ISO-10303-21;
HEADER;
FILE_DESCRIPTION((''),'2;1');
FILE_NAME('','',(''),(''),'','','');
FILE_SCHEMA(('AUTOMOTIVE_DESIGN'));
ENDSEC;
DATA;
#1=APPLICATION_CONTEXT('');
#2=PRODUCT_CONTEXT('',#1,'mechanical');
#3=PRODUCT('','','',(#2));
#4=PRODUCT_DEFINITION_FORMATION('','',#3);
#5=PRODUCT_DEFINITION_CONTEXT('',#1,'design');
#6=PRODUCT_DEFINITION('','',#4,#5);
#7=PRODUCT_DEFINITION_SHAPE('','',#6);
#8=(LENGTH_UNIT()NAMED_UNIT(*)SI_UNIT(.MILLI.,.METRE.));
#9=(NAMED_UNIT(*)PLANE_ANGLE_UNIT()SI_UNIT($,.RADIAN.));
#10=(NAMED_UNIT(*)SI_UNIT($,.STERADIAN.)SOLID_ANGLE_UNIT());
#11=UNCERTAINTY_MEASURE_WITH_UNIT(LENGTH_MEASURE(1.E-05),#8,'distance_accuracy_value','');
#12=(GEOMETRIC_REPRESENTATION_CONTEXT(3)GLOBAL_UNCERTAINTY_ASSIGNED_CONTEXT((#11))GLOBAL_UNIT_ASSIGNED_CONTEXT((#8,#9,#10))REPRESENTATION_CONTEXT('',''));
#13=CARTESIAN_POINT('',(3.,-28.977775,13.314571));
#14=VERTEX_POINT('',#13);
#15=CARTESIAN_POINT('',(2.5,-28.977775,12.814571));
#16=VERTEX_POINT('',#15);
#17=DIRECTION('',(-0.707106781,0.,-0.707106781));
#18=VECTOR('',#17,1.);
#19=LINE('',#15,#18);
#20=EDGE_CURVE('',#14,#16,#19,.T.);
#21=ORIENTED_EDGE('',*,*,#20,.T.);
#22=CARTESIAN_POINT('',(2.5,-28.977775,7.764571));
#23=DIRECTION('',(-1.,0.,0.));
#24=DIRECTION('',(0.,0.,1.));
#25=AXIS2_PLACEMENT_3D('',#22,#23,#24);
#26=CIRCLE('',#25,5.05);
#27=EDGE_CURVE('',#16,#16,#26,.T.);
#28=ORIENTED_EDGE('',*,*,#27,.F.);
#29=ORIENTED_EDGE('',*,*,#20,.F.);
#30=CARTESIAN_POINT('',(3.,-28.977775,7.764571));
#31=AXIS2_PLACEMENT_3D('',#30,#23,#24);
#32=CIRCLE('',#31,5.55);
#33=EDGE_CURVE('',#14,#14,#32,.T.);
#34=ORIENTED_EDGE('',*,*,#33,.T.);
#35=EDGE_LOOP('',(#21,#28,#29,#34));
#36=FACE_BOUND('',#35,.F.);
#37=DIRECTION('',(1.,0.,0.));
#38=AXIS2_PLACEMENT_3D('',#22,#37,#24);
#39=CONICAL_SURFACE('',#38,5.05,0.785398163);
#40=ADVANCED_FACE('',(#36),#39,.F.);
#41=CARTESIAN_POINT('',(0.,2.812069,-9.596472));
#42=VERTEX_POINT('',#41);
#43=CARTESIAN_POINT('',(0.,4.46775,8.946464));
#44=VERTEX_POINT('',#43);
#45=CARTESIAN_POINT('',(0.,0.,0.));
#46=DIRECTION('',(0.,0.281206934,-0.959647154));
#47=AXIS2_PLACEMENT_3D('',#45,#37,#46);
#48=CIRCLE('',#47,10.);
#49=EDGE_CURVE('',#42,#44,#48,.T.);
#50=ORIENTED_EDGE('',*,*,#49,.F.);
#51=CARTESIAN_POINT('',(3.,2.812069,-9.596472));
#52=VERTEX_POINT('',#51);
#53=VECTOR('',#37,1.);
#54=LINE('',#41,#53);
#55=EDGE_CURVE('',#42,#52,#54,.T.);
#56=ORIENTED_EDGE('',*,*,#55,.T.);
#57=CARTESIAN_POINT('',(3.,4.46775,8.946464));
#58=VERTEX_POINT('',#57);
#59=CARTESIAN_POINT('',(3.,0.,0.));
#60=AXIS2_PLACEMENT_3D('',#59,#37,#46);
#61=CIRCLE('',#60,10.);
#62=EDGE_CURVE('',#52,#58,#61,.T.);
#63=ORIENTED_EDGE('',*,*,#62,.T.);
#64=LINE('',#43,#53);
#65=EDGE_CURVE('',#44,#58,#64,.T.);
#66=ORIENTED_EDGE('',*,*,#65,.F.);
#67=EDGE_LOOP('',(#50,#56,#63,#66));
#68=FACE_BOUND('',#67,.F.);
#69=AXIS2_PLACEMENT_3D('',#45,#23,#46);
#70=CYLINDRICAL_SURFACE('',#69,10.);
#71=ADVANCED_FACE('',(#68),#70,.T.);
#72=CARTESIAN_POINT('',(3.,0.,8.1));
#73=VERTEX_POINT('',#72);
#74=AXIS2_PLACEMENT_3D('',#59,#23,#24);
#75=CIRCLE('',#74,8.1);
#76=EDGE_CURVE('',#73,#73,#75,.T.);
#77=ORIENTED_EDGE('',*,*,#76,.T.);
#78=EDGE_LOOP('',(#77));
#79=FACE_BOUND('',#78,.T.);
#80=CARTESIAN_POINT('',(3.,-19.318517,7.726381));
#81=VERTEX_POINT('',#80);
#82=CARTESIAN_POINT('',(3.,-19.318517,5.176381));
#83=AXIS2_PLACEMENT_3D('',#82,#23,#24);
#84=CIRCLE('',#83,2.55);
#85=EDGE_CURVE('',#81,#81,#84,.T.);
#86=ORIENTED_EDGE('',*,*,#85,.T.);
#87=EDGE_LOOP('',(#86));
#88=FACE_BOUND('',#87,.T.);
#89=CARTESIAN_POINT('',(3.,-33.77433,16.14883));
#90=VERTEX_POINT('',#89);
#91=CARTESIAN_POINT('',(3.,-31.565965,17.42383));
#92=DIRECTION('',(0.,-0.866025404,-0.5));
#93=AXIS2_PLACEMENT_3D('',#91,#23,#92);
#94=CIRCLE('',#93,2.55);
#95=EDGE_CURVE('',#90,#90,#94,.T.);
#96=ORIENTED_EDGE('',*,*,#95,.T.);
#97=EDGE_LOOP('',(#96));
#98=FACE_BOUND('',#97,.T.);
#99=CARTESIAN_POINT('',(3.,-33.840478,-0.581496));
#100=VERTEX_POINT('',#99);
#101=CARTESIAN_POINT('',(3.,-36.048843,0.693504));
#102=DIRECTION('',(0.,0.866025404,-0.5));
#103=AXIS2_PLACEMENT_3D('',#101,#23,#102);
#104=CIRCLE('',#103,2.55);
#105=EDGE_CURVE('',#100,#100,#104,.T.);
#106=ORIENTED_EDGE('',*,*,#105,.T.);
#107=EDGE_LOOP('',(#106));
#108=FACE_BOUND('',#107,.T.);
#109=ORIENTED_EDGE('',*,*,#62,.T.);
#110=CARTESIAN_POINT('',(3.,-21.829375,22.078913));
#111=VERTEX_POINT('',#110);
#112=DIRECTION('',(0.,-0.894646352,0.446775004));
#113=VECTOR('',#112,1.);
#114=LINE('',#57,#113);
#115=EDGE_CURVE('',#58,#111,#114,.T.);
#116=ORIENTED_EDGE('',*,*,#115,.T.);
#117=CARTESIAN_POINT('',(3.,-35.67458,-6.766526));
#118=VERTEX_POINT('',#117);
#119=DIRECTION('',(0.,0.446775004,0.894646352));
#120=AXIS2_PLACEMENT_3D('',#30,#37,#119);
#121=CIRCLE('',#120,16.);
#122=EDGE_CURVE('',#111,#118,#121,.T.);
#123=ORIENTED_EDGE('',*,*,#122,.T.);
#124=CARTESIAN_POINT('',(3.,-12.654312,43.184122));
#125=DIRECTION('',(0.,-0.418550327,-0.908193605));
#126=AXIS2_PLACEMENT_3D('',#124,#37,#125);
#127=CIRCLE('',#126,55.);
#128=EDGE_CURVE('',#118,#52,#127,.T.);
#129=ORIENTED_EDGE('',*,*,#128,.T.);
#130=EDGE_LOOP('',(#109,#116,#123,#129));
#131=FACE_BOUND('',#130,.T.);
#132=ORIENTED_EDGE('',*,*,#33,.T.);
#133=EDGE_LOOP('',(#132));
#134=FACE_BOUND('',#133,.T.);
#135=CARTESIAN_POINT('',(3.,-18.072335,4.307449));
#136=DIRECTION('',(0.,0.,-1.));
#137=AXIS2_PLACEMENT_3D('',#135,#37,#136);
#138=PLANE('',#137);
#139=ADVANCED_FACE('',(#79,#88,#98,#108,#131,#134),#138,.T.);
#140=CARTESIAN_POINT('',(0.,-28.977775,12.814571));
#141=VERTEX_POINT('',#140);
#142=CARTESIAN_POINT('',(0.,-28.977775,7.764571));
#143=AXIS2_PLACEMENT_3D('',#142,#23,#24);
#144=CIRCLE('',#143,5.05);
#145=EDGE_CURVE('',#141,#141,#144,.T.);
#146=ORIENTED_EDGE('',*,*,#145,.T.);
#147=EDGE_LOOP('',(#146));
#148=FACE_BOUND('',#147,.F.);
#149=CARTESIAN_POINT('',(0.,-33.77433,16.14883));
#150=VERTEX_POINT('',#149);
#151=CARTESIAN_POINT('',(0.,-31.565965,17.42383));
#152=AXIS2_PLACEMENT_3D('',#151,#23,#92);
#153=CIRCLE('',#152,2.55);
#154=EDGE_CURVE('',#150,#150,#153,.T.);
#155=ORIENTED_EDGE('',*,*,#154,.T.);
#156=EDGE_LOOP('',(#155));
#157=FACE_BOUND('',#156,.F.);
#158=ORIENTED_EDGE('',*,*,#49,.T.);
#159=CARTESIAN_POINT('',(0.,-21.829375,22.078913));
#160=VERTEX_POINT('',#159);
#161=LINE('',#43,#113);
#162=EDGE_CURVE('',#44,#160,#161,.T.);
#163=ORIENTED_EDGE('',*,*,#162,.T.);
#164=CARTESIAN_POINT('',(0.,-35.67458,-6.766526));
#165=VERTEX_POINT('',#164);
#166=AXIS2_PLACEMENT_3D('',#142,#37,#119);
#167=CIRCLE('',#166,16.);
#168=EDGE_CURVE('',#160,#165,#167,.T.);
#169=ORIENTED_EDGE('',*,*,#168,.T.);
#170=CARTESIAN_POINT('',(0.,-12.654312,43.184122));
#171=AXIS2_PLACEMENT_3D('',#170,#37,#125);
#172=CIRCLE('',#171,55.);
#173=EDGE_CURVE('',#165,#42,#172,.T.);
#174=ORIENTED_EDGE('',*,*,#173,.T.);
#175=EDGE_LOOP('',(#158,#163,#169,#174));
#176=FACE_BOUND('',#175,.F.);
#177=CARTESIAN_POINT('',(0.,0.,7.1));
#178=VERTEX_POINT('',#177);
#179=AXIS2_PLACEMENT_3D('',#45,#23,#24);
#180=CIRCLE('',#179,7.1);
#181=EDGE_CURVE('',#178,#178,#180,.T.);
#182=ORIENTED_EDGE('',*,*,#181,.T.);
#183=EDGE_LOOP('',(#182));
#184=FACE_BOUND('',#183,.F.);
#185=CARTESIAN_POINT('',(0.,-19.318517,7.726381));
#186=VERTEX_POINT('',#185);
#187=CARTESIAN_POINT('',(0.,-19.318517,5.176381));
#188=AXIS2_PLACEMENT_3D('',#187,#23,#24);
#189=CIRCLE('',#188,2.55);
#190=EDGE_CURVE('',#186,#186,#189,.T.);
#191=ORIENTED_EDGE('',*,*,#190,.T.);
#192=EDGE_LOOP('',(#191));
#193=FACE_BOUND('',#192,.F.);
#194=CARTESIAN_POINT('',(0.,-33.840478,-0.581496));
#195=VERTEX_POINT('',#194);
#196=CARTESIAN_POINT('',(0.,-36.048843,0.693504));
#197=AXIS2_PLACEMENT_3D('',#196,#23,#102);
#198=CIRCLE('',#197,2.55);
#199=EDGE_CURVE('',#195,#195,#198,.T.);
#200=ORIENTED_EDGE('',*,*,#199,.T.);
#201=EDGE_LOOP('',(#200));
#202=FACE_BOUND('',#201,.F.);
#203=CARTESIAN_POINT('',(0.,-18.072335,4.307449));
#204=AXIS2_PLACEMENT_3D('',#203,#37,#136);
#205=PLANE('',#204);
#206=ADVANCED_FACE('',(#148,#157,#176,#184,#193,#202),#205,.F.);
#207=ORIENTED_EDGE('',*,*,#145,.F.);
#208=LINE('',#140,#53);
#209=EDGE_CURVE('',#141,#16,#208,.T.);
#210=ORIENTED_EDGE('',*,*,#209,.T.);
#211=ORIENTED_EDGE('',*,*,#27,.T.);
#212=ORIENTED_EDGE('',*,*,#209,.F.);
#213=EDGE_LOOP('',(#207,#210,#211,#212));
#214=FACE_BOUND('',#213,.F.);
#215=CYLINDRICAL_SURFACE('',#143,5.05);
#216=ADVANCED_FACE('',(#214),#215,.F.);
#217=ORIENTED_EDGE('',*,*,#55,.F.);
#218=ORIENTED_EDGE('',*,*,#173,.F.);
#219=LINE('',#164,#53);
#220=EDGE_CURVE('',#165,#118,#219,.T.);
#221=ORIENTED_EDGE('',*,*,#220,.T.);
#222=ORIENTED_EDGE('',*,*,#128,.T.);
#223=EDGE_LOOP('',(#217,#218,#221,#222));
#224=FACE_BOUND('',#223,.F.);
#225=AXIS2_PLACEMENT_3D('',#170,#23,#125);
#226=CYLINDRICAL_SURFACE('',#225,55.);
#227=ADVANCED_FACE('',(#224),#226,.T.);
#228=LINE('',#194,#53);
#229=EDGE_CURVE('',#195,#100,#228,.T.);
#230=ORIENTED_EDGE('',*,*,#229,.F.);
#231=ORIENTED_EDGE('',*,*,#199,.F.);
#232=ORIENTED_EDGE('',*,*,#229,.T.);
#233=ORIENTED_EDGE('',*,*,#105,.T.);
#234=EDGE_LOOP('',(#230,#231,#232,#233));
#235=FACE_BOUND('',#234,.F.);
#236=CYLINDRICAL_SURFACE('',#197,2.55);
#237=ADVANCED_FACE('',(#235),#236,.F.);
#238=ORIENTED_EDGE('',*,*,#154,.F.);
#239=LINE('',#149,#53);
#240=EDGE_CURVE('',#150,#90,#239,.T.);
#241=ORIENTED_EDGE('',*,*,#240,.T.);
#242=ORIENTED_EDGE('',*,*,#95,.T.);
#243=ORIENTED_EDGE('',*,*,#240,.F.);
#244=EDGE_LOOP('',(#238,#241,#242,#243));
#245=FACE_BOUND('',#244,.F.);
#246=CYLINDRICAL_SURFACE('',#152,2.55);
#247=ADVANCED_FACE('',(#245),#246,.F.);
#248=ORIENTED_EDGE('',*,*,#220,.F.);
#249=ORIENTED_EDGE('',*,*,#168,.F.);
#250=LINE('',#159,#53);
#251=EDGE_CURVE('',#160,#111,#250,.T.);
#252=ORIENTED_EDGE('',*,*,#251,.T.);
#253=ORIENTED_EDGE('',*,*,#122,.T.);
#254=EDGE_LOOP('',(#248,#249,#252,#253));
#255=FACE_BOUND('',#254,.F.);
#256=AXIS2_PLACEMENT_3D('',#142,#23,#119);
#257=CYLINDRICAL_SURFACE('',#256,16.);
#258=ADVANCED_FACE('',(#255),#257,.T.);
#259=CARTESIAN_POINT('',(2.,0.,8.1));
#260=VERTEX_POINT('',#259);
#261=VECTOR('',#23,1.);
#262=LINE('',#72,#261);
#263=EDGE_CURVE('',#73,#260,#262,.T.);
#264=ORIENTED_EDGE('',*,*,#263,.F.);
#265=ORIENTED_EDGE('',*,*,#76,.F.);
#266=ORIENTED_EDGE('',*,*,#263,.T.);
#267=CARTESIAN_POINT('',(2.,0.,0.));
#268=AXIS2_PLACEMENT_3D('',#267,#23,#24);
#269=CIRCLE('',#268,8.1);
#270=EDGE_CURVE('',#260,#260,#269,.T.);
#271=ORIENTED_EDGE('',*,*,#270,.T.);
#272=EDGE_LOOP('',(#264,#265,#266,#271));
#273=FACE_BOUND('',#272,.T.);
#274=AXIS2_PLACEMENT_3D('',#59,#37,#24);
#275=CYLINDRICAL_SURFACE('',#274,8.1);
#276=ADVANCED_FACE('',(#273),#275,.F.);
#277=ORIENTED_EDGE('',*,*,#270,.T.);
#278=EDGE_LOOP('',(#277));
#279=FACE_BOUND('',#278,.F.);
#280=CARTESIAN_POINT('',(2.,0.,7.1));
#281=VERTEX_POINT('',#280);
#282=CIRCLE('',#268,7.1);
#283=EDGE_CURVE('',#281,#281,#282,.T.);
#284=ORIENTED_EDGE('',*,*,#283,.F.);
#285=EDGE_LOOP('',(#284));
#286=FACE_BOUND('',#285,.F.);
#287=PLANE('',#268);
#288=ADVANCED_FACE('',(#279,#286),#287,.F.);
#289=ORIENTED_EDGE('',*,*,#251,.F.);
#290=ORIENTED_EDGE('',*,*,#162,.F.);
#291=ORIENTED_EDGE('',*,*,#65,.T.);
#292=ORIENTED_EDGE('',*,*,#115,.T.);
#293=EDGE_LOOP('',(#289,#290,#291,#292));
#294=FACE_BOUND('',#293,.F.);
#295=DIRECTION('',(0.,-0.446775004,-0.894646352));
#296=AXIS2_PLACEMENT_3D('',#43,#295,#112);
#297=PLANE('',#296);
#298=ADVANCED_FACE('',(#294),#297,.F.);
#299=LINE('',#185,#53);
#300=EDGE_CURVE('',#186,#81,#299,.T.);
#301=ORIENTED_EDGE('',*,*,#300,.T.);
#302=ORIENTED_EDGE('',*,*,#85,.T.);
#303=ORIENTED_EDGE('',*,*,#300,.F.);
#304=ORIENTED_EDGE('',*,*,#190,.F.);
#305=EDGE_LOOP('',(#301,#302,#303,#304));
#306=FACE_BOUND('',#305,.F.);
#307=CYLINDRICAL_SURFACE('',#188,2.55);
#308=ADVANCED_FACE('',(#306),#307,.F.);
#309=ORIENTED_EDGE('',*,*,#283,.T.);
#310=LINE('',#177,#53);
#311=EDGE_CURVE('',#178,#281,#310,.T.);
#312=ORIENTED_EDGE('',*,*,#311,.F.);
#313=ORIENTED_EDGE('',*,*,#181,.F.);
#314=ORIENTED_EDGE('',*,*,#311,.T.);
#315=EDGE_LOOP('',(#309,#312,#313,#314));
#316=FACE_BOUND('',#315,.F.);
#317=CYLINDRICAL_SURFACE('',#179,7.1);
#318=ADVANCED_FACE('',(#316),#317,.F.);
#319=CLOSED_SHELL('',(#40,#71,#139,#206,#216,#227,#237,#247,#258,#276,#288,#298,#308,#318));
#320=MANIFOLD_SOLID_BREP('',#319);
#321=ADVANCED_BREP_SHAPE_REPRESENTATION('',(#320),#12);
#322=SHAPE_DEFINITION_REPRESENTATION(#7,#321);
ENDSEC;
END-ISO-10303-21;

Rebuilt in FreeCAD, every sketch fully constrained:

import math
import FreeCAD as App
import Part
import Sketcher


def edges_at(feature, points):
    """Names of the edges that pass closest to the given points."""
    edges = feature.Shape.Edges
    near = lambda p: min(range(len(edges)), key=lambda i: edges[i].distToShape(Part.Vertex(*p))[0])
    return sorted({f"Edge{near(p) + 1}" for p in points})

doc = App.newDocument("Part")
body = doc.addObject("PartDesign::Body", "Body")

# Sketch on YZ plane
sketch1 = body.newObject("Sketcher::SketchObject", "Sketch")
sketch1.AttachmentSupport = (doc.getObject("YZ_Plane"), [""])
sketch1.MapMode = "FlatFace"
sketch1.addGeometry([
    Part.ArcOfCircle(Part.Circle(App.Vector(-13, 43, 0), App.Vector(0, 0, 1), 55), math.radians(-115), math.radians(-74)),
    Part.ArcOfCircle(Part.Circle(App.Vector(0, 0, 0), App.Vector(0, 0, 1), 10), math.radians(-74), math.radians(63)),
    Part.LineSegment(App.Vector(4, 9, 0), App.Vector(-22, 22, 0)),
    Part.ArcOfCircle(Part.Circle(App.Vector(-29, 8, 0), App.Vector(0, 0, 1), 16), math.radians(63), math.radians(245)),
], False)
sketch1.addConstraint([
    Sketcher.Constraint("Tangent", 0, 2, 1, 1),
    Sketcher.Constraint("Tangent", 1, 2, 2, 1),
    Sketcher.Constraint("Tangent", 2, 2, 3, 1),
    Sketcher.Constraint("Tangent", 3, 2, 0, 1),
    Sketcher.Constraint("Coincident", 1, 3, -1, 1),
    Sketcher.Constraint("Radius", 0, 55.0),
    Sketcher.Constraint("Radius", 1, 10.0),
    Sketcher.Constraint("Radius", 3, 16.0),
    Sketcher.Constraint("DistanceX", 3, 3, 2, 2, 7.1484),
    Sketcher.Constraint("DistanceY", -1, 1, 0, 3, 43.184122),
])
pad1 = body.newObject("PartDesign::Pad", "Pad")
pad1.Profile = sketch1
pad1.Length = 3

# Sketch on YZ plane
sketch2 = body.newObject("Sketcher::SketchObject", "Sketch001")
sketch2.AttachmentSupport = (doc.getObject("YZ_Plane"), [""])
sketch2.MapMode = "FlatFace"
sketch2.addGeometry([
    Part.Circle(App.Vector(0, 0, 0), App.Vector(0, 0, 1), 7),
    Part.Circle(App.Vector(-29, 8, 0), App.Vector(0, 0, 1), 5),
], False)
sketch2.addConstraint([
    Sketcher.Constraint("Coincident", 0, 3, -1, 1),
    Sketcher.Constraint("Diameter", 0, 14.2),
    Sketcher.Constraint("Diameter", 1, 10.1),
    Sketcher.Constraint("DistanceY", -1, 1, 1, 3, 7.764571),
    Sketcher.Constraint("DistanceX", 1, 3, -1, 1, 28.977775),
])
pocket1 = body.newObject("PartDesign::Pocket", "Pocket")
pocket1.Profile = sketch2
pocket1.Length = 10
pocket1.Reversed = True

# Sketch on YZ plane
sketch3 = body.newObject("Sketcher::SketchObject", "Sketch002")
sketch3.AttachmentSupport = (doc.getObject("YZ_Plane"), [""])
sketch3.MapMode = "FlatFace"
sketch3.addGeometry(Part.Circle(App.Vector(-19.3, 5.2, 0), App.Vector(0, 0, 1), 2.5), False)
sketch3.addConstraint([
    Sketcher.Constraint("Diameter", 0, 5.1),
    Sketcher.Constraint("DistanceY", -1, 1, 0, 3, 5.176381),
    Sketcher.Constraint("DistanceX", 0, 3, -1, 1, 19.318517),
])
pocket2 = body.newObject("PartDesign::Pocket", "Pocket001")
pocket2.Profile = sketch3
pocket2.Length = 10
pocket2.Reversed = True
doc.recompute()

datumline = body.newObject("PartDesign::Line", "DatumLine")
datumline.Placement = App.Placement(App.Vector(0, -28.977775, 7.764571), App.Rotation(App.Vector(0, 0, 1), App.Vector(1, 0, 0)))
polarpattern = body.newObject("PartDesign::PolarPattern", "PolarPattern")
polarpattern.Originals = [pocket2]
polarpattern.Axis = (datumline, [""])
polarpattern.Angle = 360
polarpattern.Occurrences = 3
body.Tip = polarpattern
doc.recompute()

chamfer = body.newObject("PartDesign::Chamfer", "Chamfer")
chamfer.Base = (polarpattern, edges_at(polarpattern, [(3, -28.978, 2.715)]))
chamfer.Size = 0.5

# Sketch on YZ plane
sketch4 = body.newObject("Sketcher::SketchObject", "Sketch003")
sketch4.AttachmentSupport = (doc.getObject("YZ_Plane"), [""])
sketch4.MapMode = "FlatFace"
sketch4.AttachmentOffset = App.Placement(App.Vector(0, 0, 3), App.Rotation())
sketch4.addGeometry(Part.Circle(App.Vector(0, 0, 0), App.Vector(0, 0, 1), 8), False)
sketch4.addConstraint([
    Sketcher.Constraint("Coincident", 0, 3, -1, 1),
    Sketcher.Constraint("Diameter", 0, 16.2),
])
pocket3 = body.newObject("PartDesign::Pocket", "Pocket002")
pocket3.Profile = sketch4
pocket3.Length = 1

doc.recompute()
